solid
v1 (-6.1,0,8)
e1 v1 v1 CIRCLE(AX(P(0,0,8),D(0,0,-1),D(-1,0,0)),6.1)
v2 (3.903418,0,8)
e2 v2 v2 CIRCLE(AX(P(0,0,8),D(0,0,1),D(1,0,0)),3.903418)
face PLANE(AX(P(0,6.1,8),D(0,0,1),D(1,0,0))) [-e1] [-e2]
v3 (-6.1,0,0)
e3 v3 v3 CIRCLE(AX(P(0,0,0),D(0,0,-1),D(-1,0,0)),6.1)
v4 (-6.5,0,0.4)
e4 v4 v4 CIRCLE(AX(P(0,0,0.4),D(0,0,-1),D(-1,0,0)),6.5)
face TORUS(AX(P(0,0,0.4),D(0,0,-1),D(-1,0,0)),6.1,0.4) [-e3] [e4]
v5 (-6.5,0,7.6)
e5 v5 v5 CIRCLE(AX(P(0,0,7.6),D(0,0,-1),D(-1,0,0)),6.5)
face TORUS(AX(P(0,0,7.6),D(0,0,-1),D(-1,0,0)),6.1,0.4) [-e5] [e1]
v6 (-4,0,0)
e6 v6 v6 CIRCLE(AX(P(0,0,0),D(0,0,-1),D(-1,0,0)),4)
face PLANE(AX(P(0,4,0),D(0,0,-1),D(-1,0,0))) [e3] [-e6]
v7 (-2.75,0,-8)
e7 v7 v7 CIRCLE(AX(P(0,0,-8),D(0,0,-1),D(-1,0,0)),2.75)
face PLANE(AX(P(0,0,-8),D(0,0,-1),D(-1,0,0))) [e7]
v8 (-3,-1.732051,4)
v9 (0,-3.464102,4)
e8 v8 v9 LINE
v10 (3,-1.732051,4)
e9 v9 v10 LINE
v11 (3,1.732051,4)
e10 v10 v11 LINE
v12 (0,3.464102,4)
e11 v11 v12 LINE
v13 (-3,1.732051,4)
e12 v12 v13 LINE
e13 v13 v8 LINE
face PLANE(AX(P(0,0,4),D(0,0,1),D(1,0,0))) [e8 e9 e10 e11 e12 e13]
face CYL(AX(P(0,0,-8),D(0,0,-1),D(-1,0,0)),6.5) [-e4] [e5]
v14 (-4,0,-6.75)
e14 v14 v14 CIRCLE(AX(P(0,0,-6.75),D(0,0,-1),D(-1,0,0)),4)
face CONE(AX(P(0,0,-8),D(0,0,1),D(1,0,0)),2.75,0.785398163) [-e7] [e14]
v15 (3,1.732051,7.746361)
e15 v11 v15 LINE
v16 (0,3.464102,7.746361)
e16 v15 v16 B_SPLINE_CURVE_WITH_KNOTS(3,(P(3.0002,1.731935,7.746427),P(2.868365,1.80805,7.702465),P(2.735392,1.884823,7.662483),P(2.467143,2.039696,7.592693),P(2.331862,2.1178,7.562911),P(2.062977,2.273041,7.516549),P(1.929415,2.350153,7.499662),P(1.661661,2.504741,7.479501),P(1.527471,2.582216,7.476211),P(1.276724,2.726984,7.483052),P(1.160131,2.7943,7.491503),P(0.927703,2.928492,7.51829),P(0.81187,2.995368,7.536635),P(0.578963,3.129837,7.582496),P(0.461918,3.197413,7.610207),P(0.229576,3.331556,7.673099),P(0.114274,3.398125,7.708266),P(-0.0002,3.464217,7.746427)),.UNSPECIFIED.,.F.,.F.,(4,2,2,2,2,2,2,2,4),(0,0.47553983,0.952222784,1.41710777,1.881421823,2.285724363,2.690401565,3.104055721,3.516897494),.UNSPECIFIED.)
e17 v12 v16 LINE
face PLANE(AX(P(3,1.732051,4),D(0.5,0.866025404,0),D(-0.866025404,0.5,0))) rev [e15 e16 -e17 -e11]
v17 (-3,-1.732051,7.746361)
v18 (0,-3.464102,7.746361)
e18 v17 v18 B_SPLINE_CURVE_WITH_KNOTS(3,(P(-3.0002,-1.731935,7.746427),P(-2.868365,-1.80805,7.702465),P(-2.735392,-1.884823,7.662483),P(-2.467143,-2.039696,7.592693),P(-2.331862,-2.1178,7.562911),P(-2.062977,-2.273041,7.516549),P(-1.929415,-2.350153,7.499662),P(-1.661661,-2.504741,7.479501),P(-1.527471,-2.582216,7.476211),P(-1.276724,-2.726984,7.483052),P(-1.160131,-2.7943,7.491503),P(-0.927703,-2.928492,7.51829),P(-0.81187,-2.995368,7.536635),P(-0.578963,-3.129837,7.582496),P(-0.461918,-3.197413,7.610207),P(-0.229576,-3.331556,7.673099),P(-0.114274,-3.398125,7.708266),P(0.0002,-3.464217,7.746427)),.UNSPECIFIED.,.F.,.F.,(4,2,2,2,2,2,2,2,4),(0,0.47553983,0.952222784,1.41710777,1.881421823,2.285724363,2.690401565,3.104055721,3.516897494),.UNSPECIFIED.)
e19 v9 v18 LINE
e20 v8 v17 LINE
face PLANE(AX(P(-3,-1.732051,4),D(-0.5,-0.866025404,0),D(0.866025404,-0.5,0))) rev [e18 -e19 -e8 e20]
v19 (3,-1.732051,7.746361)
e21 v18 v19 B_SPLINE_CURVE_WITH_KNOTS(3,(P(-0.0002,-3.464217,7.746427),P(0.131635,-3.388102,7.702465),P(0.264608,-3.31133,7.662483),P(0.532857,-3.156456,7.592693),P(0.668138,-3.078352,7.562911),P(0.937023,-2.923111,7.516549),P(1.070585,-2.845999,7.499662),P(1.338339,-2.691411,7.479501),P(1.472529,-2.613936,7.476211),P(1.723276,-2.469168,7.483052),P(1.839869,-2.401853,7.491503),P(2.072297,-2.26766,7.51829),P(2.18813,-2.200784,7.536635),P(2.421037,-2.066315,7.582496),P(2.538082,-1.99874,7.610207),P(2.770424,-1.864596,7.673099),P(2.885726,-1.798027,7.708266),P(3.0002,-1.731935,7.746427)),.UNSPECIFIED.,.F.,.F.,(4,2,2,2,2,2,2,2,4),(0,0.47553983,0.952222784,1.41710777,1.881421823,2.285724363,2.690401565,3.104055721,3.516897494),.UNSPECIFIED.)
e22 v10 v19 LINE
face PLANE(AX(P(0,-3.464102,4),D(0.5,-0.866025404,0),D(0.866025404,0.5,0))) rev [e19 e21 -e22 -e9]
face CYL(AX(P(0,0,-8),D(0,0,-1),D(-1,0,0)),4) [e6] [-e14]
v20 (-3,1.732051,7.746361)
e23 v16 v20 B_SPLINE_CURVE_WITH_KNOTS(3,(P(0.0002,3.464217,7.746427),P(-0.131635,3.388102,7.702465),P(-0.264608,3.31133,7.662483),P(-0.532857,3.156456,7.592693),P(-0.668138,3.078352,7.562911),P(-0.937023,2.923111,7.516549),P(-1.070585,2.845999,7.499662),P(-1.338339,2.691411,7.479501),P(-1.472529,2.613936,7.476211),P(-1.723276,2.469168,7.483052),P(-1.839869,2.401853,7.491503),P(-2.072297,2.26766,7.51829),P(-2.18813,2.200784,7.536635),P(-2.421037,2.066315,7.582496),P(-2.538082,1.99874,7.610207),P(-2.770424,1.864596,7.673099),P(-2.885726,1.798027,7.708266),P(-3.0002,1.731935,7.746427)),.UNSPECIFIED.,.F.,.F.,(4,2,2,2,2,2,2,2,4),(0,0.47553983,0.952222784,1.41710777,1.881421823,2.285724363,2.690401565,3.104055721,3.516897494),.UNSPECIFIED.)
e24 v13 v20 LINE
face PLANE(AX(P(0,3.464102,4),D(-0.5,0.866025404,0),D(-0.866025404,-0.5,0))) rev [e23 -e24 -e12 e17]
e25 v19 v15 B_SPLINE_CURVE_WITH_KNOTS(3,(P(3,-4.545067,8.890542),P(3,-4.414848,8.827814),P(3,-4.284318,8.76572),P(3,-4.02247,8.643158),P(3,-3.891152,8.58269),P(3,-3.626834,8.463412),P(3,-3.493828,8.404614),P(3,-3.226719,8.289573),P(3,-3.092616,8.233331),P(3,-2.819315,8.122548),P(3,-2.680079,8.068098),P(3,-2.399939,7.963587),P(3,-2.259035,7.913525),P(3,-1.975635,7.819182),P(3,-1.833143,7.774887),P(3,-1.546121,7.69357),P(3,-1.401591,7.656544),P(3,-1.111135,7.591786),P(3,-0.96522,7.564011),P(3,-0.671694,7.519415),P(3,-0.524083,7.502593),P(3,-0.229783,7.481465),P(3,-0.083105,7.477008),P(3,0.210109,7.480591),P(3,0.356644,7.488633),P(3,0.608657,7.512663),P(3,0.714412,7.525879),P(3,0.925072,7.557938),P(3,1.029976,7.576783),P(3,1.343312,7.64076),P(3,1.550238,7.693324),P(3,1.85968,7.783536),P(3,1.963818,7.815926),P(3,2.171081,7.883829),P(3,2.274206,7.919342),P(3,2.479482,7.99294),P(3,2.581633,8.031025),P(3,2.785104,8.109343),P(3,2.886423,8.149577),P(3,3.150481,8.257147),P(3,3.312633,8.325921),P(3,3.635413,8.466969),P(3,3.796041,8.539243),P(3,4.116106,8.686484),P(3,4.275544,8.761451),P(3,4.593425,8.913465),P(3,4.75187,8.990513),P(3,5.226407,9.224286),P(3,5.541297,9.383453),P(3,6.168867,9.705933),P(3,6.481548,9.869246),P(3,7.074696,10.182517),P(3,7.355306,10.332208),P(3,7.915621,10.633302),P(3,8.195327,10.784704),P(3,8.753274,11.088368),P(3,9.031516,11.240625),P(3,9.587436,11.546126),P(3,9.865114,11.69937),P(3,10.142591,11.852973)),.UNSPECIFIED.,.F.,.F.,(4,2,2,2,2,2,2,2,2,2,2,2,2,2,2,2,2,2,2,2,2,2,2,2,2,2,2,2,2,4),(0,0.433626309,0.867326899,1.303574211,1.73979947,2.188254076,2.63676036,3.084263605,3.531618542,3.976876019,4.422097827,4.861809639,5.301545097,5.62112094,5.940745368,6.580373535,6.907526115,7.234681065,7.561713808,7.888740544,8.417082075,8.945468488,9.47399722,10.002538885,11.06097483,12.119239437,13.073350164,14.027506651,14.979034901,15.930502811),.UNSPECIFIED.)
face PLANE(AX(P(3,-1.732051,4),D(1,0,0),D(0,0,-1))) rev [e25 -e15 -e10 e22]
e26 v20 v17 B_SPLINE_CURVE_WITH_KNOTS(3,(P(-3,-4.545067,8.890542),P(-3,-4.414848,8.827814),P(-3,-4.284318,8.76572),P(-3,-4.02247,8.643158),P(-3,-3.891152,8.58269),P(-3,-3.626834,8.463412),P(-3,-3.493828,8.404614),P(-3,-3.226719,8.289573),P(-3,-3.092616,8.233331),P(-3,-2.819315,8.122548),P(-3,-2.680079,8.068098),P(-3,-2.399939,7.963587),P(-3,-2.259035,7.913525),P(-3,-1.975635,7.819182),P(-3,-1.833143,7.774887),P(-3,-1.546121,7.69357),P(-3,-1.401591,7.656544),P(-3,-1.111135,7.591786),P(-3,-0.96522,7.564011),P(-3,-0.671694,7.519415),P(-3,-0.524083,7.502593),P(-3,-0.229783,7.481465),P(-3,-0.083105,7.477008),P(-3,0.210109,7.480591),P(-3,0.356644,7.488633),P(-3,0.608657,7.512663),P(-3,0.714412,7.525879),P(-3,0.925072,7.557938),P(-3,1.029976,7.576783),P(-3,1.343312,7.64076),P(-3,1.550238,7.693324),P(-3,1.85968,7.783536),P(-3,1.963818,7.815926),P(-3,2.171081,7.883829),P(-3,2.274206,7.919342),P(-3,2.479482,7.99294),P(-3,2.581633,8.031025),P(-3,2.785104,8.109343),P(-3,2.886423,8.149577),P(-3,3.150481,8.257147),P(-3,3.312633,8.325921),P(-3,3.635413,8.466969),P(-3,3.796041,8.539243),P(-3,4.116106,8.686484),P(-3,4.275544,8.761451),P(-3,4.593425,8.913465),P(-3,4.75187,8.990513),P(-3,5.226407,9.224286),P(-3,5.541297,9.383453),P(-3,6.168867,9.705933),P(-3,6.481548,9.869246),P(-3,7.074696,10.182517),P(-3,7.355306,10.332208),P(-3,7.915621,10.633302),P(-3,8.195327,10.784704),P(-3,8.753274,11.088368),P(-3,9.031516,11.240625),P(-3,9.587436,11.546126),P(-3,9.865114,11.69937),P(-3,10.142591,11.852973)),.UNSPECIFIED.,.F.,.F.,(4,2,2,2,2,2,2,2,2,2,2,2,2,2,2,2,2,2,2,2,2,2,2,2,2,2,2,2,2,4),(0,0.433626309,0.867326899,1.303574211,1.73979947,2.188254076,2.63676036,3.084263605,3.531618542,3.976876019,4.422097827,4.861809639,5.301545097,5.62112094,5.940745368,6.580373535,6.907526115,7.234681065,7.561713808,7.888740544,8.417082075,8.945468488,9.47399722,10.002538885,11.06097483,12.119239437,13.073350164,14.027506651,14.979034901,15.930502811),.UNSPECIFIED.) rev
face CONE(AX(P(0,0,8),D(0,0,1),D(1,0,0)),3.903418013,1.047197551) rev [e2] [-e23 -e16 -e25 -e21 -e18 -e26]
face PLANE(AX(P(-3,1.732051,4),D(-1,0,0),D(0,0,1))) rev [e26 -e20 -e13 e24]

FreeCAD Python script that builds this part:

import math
import FreeCAD as App
import Part
import Sketcher
from FreeCAD import Vector
Q = App.Units.Quantity


def add_polygon(sketch, points):
    """Adds a closed chain of lines whose ends are joined by coincident constraints."""
    first, n = sketch.GeometryCount, len(points)
    for a, b in zip(points, points[1:] + points[:1]):
        sketch.addGeometry(Part.LineSegment(App.Vector(*a, 0), App.Vector(*b, 0)), False)
    for i in range(n):
        sketch.addConstraint(Sketcher.Constraint("Coincident", first + i, 2, first + (i + 1) % n, 1))

doc = App.newDocument("Part")
body = doc.addObject("PartDesign::Body", "Body")

sketch1 = doc.addObject("Sketcher::SketchObject", "Sketch")
body.addObject(sketch1)
sketch1.AttachmentSupport = (doc.YZ_Plane, [""])
sketch1.MapMode = "FlatFace"
sketch1.addGeometry(Part.LineSegment(Vector(0, -8, 0), Vector(2.75, -8, 0)), False)
sketch1.addGeometry(Part.LineSegment(Vector(2.75, -8, 0), Vector(4, -6.75, 0)), False)
sketch1.addGeometry(Part.LineSegment(Vector(4, -6.75, 0), Vector(4, 0, 0)), False)
sketch1.addGeometry(Part.LineSegment(Vector(4, 0, 0), Vector(6.1, 0, 0)), False)
sketch1.addGeometry(Part.ArcOfCircle(Part.Circle(Vector(6.1, 0.4, 0), Vector(0, 0, 1), 0.4), math.radians(-90), math.radians(0)), False)
sketch1.addGeometry(Part.LineSegment(Vector(6.5, 0.4, 0), Vector(6.5, 7.6, 0)), False)
sketch1.addGeometry(Part.ArcOfCircle(Part.Circle(Vector(6.1, 7.6, 0), Vector(0, 0, 1), 0.4), math.radians(0), math.radians(90)), False)
sketch1.addGeometry(Part.LineSegment(Vector(6.1, 8, 0), Vector(0, 8, 0)), False)
sketch1.addGeometry(Part.LineSegment(Vector(0, 8, 0), Vector(0, -8, 0)), False)
sketch1.addConstraint(Sketcher.Constraint("Coincident", 0, 2, 1, 1))
sketch1.addConstraint(Sketcher.Constraint("Coincident", 1, 2, 2, 1))
sketch1.addConstraint(Sketcher.Constraint("Coincident", 2, 2, 3, 1))
sketch1.addConstraint(Sketcher.Constraint("Tangent", 3, 2, 4, 1))
sketch1.addConstraint(Sketcher.Constraint("Tangent", 4, 2, 5, 1))
sketch1.addConstraint(Sketcher.Constraint("Tangent", 5, 2, 6, 1))
sketch1.addConstraint(Sketcher.Constraint("Tangent", 6, 2, 7, 1))
sketch1.addConstraint(Sketcher.Constraint("Coincident", 7, 2, 8, 1))
sketch1.addConstraint(Sketcher.Constraint("Coincident", 8, 2, 0, 1))
sketch1.addConstraint(Sketcher.Constraint("Horizontal", 0))
sketch1.addConstraint(Sketcher.Constraint("Vertical", 2))
sketch1.addConstraint(Sketcher.Constraint("Horizontal", 3))
sketch1.addConstraint(Sketcher.Constraint("Vertical", 5))
sketch1.addConstraint(Sketcher.Constraint("Horizontal", 7))
sketch1.addConstraint(Sketcher.Constraint("Vertical", 8))
sketch1.addConstraint(Sketcher.Constraint("Equal", 4, 6))
sketch1.addConstraint(Sketcher.Constraint("Symmetric", 7, 2, 8, 2, -1, 1))
sketch1.addConstraint(Sketcher.Constraint("PointOnObject", 2, 2, -1))
sketch1.addConstraint(Sketcher.Constraint("Radius", 4, 0.4))
sketch1.addConstraint(Sketcher.Constraint("DistanceY", 8, 2, 8, 1, 16.0))
sketch1.addConstraint(Sketcher.Constraint("Angle", 1, Q("45 deg")))
sketch1.addConstraint(Sketcher.Constraint("DistanceX", 3, 1, 3, 2, 2.1))
sketch1.addConstraint(Sketcher.Constraint("DistanceX", 7, 2, 7, 1, 6.1))
sketch1.addConstraint(Sketcher.Constraint("DistanceX", 0, 1, 0, 2, 2.75))
revolution = doc.addObject("PartDesign::Revolution", "Revolution")
body.addObject(revolution)
revolution.Profile = sketch1
revolution.ReferenceAxis = (sketch1, ["V_Axis"])
revolution.Angle = 360

sketch2 = doc.addObject("Sketcher::SketchObject", "Sketch001")
body.addObject(sketch2)
sketch2.AttachmentSupport = (doc.XY_Plane, [""])
sketch2.MapMode = "FlatFace"
sketch2.AttachmentOffset = App.Placement(Vector(0, 0, 8), App.Rotation())
add_polygon(sketch2, [(-3, 1.7), (-3, -1.7), (0, -3.5), (3, -1.7), (3, 1.7), (0, 3.5)])
sketch2.addConstraint(Sketcher.Constraint("Vertical", 0))
sketch2.addConstraint(Sketcher.Constraint("Vertical", 3))
sketch2.addConstraint(Sketcher.Constraint("Symmetric", 0, 2, 3, 2, -1, 1))
sketch2.addConstraint(Sketcher.Constraint("Symmetric", 1, 2, 4, 2, -1, 1))
sketch2.addConstraint(Sketcher.Constraint("PointOnObject", 1, 2, -2))
sketch2.addConstraint(Sketcher.Constraint("Parallel", 2, 5))
sketch2.addConstraint(Sketcher.Constraint("Horizontal", 0, 2, 2, 2))
sketch2.addConstraint(Sketcher.Constraint("Angle", 1, Q("-30 deg")))
sketch2.addConstraint(Sketcher.Constraint("DistanceX", 0, 2, -1, 1, 3.0))
sketch2.addConstraint(Sketcher.Constraint("DistanceY", 0, 2, 0, 1, 3.464102))
pocket1 = doc.addObject("PartDesign::Pocket", "Pocket")
body.addObject(pocket1)
pocket1.Profile = sketch2
pocket1.Length = 4

sketch3 = doc.addObject("Sketcher::SketchObject", "Sketch002")
body.addObject(sketch3)
sketch3.AttachmentSupport = (doc.YZ_Plane, [""])
sketch3.MapMode = "FlatFace"
add_polygon(sketch3, [(0, 8), (-3.9, 8), (0, 5.7)])
sketch3.addConstraint(Sketcher.Constraint("Horizontal", 0))
sketch3.addConstraint(Sketcher.Constraint("Vertical", 2))
sketch3.addConstraint(Sketcher.Constraint("PointOnObject", 1, 2, -2))
sketch3.addConstraint(Sketcher.Constraint("Angle", 1, Q("-30 deg")))
sketch3.addConstraint(Sketcher.Constraint("DistanceY", -1, 1, 0, 2, 8.0))
sketch3.addConstraint(Sketcher.Constraint("DistanceX", 0, 2, 0, 1, 3.903418))
groove = doc.addObject("PartDesign::Groove", "Groove")
body.addObject(groove)
groove.Profile = sketch3
groove.ReferenceAxis = (sketch3, ["V_Axis"])
groove.Angle = 360

doc.recompute()
